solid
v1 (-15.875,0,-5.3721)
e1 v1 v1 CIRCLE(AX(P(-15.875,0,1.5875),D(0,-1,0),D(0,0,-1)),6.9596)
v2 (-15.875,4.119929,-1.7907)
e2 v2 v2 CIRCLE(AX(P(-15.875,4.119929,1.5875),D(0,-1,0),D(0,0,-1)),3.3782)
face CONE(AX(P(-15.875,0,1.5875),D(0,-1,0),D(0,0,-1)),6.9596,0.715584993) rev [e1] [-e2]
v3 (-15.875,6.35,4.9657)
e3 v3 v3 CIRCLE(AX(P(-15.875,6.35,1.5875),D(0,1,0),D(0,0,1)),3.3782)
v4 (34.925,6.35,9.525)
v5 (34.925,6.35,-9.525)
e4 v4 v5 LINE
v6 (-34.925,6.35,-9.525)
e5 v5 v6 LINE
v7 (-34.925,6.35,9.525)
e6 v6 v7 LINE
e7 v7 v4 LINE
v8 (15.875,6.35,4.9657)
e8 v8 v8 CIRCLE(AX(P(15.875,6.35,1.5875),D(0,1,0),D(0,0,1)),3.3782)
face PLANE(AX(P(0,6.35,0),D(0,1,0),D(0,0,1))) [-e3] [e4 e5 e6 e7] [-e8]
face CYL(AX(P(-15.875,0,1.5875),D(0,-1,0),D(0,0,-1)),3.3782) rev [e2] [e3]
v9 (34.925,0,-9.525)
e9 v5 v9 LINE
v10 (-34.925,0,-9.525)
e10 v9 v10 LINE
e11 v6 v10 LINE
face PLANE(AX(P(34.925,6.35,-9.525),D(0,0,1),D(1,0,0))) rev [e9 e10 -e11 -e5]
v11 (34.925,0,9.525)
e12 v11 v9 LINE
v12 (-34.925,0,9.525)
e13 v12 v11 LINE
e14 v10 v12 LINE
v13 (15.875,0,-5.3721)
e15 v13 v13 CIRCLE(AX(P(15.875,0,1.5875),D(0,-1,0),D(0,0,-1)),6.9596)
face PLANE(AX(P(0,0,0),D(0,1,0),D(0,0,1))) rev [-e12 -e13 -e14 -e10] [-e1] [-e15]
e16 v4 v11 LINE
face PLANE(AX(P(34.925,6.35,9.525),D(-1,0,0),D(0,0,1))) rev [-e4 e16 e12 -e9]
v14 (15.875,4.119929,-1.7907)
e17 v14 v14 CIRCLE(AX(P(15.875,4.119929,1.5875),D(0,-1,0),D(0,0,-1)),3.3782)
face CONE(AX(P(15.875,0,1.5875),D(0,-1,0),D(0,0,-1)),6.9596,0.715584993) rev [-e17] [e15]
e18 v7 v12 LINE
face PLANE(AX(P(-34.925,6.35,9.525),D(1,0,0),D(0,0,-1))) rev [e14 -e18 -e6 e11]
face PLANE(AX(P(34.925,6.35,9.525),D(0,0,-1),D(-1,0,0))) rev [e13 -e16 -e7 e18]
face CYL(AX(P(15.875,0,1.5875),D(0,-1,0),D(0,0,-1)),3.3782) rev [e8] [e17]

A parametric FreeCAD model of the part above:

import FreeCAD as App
import Part
import Sketcher
Q = App.Units.Quantity


def add_polygon(sketch, points):
    """Adds a closed chain of lines whose ends are joined by coincident constraints."""
    first, n = sketch.GeometryCount, len(points)
    for a, b in zip(points, points[1:] + points[:1]):
        sketch.addGeometry(Part.LineSegment(App.Vector(*a, 0), App.Vector(*b, 0)), False)
    for i in range(n):
        sketch.addConstraint(Sketcher.Constraint("Coincident", first + i, 2, first + (i + 1) % n, 1))

doc = App.newDocument("Part")
body = doc.addObject("PartDesign::Body", "Body")

# Sketch on XZ plane
sketch1 = body.newObject("Sketcher::SketchObject", "Sketch")
sketch1.AttachmentSupport = (doc.getObject("XZ_Plane"), [""])
sketch1.MapMode = "FlatFace"
add_polygon(sketch1, [(-35, -10), (-35, 10), (35, 10), (35, -10)])  # lines 0-3
sketch1.addConstraint([
    Sketcher.Constraint("Vertical", 0),
    Sketcher.Constraint("Horizontal", 1),
    Sketcher.Constraint("Vertical", 2),
    Sketcher.Constraint("Horizontal", 3),
    Sketcher.Constraint("Symmetric", 0, 2, 2, 2, -1, 1),
    Sketcher.Constraint("DistanceX", 1, 1, 1, 2, Q("2.75 in")),
    Sketcher.Constraint("DistanceY", 0, 1, 0, 2, Q("0.75 in")),
])
pad1 = body.newObject("PartDesign::Pad", "Pad")
pad1.Profile = sketch1
pad1.Length = Q("0.25 in")
pad1.Reversed = True

# Sketch on XZ plane
sketch2 = body.newObject("Sketcher::SketchObject", "Sketch001")
sketch2.AttachmentSupport = (doc.getObject("XZ_Plane"), [""])
sketch2.MapMode = "FlatFace"
sketch2.addGeometry([
    Part.Circle(App.Vector(-15.9, 1.6, 0), App.Vector(0, 0, 1), 3.4),
    Part.Circle(App.Vector(15.9, 1.6, 0), App.Vector(0, 0, 1), 3.4),
], False)
sketch2.addConstraint([
    Sketcher.Constraint("Equal", 0, 1),
    Sketcher.Constraint("Symmetric", 0, 3, 1, 3, -2),
    Sketcher.Constraint("Diameter", 0, Q("0.266 in")),
    Sketcher.Constraint("DistanceX", 0, 3, 1, 3, Q("1.25 in")),
    Sketcher.Constraint("DistanceY", -1, 1, 0, 3, Q("0.0625 in")),
])
doc.recompute()
hole = body.newObject("PartDesign::Hole", "Hole")
hole.Profile = sketch2
hole.ThreadType = "None"
hole.Diameter = Q("0.266 in")
hole.DepthType = "Dimension"
hole.Depth = Q("0.6 in")
hole.DrillPoint = "Angled"
hole.DrillPointAngle = 118
hole.HoleCutType = "Countersink"
hole.HoleCutDiameter = Q("0.548 in")
hole.HoleCutCountersinkAngle = 82

doc.recompute()
